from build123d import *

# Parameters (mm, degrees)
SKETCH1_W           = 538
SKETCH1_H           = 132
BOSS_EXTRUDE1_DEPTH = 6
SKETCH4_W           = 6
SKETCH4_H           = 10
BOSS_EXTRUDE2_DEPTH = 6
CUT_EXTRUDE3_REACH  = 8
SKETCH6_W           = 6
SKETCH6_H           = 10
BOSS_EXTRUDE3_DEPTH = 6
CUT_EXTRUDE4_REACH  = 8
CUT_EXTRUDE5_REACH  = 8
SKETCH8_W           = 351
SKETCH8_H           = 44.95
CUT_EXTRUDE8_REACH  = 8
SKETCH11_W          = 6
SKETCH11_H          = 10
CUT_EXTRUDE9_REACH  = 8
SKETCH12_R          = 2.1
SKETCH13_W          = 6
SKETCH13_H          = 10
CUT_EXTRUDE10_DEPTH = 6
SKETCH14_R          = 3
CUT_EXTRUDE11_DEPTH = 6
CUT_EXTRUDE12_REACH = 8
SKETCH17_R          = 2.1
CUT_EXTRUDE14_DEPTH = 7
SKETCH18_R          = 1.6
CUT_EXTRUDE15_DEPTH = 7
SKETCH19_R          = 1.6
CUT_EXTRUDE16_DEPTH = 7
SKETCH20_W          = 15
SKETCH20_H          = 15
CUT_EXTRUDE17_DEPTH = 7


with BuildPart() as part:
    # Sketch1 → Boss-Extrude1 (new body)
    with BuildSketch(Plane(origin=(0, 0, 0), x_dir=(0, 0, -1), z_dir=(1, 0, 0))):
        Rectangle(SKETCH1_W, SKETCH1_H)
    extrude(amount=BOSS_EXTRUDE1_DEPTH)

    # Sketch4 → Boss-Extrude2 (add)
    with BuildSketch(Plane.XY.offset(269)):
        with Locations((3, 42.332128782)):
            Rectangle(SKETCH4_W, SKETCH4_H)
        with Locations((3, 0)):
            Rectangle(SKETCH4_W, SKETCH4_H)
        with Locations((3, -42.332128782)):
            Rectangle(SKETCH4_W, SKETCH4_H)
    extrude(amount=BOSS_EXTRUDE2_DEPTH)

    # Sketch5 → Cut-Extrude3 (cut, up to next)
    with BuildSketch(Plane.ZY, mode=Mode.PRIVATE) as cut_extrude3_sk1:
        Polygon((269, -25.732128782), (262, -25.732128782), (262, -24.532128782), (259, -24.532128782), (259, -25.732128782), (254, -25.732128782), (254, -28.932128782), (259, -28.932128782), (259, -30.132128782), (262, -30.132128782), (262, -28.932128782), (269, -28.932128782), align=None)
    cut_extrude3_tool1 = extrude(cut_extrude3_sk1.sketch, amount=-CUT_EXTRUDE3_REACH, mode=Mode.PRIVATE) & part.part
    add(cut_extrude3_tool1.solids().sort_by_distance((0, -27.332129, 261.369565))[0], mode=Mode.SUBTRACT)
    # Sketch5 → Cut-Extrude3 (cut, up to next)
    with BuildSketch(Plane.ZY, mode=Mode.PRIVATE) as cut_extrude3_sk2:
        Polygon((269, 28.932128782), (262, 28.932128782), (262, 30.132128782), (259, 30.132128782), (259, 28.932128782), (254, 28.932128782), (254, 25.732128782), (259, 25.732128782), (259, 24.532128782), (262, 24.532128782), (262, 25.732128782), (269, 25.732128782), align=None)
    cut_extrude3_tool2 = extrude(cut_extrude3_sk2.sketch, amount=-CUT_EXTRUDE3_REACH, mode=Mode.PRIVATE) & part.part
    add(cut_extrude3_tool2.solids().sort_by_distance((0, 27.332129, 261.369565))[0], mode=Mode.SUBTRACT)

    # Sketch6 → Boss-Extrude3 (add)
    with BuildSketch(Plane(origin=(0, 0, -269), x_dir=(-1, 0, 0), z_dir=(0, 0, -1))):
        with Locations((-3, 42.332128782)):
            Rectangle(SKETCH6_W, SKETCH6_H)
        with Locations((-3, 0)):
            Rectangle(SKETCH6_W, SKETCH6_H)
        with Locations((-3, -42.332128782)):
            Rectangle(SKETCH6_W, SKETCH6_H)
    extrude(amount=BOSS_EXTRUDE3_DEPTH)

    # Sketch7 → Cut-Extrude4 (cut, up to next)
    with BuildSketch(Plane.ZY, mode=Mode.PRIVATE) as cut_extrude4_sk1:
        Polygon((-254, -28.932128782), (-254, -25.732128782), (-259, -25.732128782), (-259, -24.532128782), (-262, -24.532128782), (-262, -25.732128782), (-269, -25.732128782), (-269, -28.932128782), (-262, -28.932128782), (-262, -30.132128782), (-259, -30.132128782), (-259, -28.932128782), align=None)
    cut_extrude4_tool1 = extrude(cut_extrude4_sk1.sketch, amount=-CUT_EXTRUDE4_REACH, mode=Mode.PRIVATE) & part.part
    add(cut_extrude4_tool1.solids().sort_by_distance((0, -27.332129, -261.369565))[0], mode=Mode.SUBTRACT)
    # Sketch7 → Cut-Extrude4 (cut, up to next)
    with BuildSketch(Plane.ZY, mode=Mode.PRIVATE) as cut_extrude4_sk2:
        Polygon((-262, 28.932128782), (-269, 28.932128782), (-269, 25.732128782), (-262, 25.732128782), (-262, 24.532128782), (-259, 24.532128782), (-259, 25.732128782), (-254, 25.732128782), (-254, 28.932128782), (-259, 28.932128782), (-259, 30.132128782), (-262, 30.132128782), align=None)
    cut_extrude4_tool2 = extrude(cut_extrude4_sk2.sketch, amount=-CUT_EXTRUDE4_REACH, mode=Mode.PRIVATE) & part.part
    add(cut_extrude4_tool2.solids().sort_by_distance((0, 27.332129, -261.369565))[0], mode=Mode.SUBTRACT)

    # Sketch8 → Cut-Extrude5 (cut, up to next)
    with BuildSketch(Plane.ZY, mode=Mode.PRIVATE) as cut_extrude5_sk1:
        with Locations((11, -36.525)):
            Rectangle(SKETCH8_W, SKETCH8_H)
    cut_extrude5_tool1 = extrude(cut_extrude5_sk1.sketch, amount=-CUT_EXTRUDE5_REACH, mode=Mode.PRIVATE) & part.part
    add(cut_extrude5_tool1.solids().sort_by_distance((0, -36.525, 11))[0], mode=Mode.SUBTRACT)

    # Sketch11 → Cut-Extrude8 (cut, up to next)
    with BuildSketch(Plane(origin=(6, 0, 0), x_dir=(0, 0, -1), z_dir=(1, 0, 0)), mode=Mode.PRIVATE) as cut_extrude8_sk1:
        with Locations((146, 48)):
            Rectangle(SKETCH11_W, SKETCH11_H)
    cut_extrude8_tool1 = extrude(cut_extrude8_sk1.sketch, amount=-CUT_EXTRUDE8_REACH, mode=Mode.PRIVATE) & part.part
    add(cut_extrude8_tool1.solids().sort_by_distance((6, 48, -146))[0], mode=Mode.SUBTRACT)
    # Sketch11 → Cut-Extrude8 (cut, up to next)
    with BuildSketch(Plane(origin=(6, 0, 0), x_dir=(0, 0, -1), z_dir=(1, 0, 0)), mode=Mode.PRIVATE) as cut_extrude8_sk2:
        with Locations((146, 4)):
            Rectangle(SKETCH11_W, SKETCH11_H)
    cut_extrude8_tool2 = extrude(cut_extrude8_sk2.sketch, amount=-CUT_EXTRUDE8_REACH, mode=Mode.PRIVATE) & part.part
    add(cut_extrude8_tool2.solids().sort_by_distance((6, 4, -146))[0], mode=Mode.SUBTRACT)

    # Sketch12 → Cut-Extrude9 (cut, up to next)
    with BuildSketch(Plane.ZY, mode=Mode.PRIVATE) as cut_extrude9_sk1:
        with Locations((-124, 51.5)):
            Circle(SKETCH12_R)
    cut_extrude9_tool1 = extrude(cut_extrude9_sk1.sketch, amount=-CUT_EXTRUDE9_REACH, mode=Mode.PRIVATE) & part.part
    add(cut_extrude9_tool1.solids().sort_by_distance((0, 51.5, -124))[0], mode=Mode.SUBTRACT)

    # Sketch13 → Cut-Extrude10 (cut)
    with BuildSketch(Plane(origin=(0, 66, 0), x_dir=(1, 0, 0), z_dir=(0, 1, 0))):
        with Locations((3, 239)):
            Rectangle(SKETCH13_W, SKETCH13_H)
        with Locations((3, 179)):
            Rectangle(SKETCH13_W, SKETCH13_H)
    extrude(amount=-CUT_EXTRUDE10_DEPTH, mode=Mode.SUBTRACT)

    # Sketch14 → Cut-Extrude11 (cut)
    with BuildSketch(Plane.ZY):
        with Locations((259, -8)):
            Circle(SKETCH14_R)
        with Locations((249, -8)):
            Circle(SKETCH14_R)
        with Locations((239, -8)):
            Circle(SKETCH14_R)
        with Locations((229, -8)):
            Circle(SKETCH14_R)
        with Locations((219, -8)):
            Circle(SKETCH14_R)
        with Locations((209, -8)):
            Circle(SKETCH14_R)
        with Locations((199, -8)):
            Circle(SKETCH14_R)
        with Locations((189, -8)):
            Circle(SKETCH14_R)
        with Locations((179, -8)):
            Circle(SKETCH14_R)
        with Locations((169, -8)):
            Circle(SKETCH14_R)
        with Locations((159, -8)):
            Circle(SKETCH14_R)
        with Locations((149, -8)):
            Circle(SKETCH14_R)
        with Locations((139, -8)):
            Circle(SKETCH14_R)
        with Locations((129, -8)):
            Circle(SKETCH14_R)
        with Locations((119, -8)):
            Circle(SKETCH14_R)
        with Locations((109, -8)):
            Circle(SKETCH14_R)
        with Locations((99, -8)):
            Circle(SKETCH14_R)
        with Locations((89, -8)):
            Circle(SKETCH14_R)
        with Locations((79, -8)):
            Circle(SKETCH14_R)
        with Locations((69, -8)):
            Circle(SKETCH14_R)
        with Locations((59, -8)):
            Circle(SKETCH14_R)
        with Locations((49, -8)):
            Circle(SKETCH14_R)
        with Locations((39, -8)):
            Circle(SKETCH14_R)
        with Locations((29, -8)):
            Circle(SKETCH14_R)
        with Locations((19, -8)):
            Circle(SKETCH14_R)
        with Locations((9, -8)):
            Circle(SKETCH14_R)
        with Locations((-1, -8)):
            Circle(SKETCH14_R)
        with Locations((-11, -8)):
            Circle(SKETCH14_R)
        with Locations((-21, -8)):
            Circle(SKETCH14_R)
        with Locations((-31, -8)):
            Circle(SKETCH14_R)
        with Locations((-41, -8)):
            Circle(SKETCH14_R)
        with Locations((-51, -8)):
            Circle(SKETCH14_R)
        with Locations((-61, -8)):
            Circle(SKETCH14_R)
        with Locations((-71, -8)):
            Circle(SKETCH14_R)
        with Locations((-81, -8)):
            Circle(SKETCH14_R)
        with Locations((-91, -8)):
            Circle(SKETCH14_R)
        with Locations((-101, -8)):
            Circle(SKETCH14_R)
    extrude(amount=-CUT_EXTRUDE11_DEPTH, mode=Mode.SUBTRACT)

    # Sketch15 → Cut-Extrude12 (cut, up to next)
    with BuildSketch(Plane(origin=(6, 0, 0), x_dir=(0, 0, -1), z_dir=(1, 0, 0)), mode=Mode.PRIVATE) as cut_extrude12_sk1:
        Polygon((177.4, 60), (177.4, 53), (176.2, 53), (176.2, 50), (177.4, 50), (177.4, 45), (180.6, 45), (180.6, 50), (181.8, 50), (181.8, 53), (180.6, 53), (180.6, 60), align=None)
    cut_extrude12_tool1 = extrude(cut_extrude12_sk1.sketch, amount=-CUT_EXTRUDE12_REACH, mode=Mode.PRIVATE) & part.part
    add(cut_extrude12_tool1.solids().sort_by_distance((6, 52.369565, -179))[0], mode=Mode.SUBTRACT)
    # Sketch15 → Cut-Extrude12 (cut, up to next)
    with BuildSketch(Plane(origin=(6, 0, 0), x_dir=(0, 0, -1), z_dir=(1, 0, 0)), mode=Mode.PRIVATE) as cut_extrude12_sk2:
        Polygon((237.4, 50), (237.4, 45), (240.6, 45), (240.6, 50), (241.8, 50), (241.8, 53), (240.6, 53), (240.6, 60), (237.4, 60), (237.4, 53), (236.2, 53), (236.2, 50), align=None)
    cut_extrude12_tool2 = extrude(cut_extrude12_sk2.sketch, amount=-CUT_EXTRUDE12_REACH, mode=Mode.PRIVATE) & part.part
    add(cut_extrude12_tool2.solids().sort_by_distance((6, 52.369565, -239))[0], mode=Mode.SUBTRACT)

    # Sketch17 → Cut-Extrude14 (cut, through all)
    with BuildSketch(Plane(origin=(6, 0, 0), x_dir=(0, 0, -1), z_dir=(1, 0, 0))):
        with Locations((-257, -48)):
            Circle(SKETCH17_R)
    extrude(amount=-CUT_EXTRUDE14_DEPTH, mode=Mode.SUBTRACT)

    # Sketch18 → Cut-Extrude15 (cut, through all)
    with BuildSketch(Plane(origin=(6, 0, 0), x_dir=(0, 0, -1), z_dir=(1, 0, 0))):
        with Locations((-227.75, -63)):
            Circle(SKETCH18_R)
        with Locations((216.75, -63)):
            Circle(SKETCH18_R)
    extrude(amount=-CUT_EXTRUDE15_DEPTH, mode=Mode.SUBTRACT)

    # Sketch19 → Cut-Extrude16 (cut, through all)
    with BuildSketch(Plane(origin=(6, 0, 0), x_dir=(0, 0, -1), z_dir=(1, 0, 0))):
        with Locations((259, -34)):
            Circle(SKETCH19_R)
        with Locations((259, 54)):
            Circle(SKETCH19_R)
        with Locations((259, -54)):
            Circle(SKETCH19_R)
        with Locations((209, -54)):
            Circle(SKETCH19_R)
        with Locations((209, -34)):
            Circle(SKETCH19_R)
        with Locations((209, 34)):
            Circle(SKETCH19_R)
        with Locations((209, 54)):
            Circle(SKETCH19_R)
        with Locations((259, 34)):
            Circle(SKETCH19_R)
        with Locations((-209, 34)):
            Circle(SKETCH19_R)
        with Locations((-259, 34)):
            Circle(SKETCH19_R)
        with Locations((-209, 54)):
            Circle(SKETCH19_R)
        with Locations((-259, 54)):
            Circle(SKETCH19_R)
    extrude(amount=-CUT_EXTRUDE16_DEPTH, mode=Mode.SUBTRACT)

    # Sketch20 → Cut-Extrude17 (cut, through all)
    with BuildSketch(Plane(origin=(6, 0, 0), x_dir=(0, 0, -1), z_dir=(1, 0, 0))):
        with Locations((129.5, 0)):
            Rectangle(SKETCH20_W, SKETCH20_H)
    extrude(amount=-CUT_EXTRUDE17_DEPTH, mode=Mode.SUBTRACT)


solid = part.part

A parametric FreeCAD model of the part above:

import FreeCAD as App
import Part
import Sketcher
from FreeCAD import Vector
Q = App.Units.Quantity


def add_polygon(sketch, points):
    """Adds a closed chain of lines whose ends are joined by coincident constraints."""
    first, n = sketch.GeometryCount, len(points)
    for a, b in zip(points, points[1:] + points[:1]):
        sketch.addGeometry(Part.LineSegment(App.Vector(*a, 0), App.Vector(*b, 0)), False)
    for i in range(n):
        sketch.addConstraint(Sketcher.Constraint("Coincident", first + i, 2, first + (i + 1) % n, 1))

doc = App.newDocument("Part")
body = doc.addObject("PartDesign::Body", "Body")

# Sketch on YZ plane
sketch1 = doc.addObject("Sketcher::SketchObject", "Sketch")
body.addObject(sketch1)
sketch1.AttachmentSupport = (doc.YZ_Plane, [""])
sketch1.MapMode = "FlatFace"
add_polygon(sketch1, [(66, 269), (-66, 269), (-66, -269), (66, -269)])  # lines 0-3
sketch1.addConstraint(Sketcher.Constraint("Horizontal", 0))
sketch1.addConstraint(Sketcher.Constraint("Vertical", 1))
sketch1.addConstraint(Sketcher.Constraint("Horizontal", 2))
sketch1.addConstraint(Sketcher.Constraint("Vertical", 3))
sketch1.addConstraint(Sketcher.Constraint("Symmetric", 0, 2, 2, 2, -1, 1))
sketch1.addConstraint(Sketcher.Constraint("DistanceX", 0, 2, 0, 1, Q("132 mm")))
sketch1.addConstraint(Sketcher.Constraint("DistanceY", 1, 2, 1, 1, Q("538 mm")))
pad1 = doc.addObject("PartDesign::Pad", "Pad")
body.addObject(pad1)
pad1.Profile = sketch1
pad1.Length = 6

# Sketch on XY plane
sketch2 = doc.addObject("Sketcher::SketchObject", "Sketch001")
body.addObject(sketch2)
sketch2.AttachmentSupport = (doc.XY_Plane, [""])
sketch2.MapMode = "FlatFace"
sketch2.AttachmentOffset = App.Placement(Vector(0, 0, 269), App.Rotation())
add_polygon(sketch2, [(0, 47.332129), (0, 37.332129), (6, 37.332129), (6, 47.332129)])  # lines 0-3
add_polygon(sketch2, [(0, 5), (0, -5), (6, -5), (6, 5)])  # lines 4-7
add_polygon(sketch2, [(0, -37.332129), (0, -47.332129), (6, -47.332129), (6, -37.332129)])  # lines 8-11
sketch2.addConstraint(Sketcher.Constraint("Vertical", 0))
sketch2.addConstraint(Sketcher.Constraint("Horizontal", 1))
sketch2.addConstraint(Sketcher.Constraint("Vertical", 2))
sketch2.addConstraint(Sketcher.Constraint("Horizontal", 3))
sketch2.addConstraint(Sketcher.Constraint("Vertical", 4))
sketch2.addConstraint(Sketcher.Constraint("Horizontal", 5))
sketch2.addConstraint(Sketcher.Constraint("Vertical", 6))
sketch2.addConstraint(Sketcher.Constraint("Horizontal", 7))
sketch2.addConstraint(Sketcher.Constraint("Vertical", 8))
sketch2.addConstraint(Sketcher.Constraint("Horizontal", 9))
sketch2.addConstraint(Sketcher.Constraint("Vertical", 10))
sketch2.addConstraint(Sketcher.Constraint("Horizontal", 11))
sketch2.addConstraint(Sketcher.Constraint("Symmetric", 4, 2, 7, 2, -1, 1))
sketch2.addConstraint(Sketcher.Constraint("Symmetric", 3, 2, 8, 2, -1, 1))
sketch2.addConstraint(Sketcher.Constraint("Symmetric", 1, 2, 10, 2, -1))
sketch2.addConstraint(Sketcher.Constraint("PointOnObject", 0, 2, -2))
sketch2.addConstraint(Sketcher.Constraint("Vertical", 2, 2, 5, 2))
sketch2.addConstraint(Sketcher.Constraint("Equal", 2, 4))
sketch2.addConstraint(Sketcher.Constraint("DistanceX", 1, 1, 1, 2, Q("6 mm")))
sketch2.addConstraint(Sketcher.Constraint("DistanceY", 0, 2, 0, 1, Q("10 mm")))
sketch2.addConstraint(Sketcher.Constraint("DistanceY", -1, 1, 0, 2, Q("37.332129 mm")))
pad2 = doc.addObject("PartDesign::Pad", "Pad001")
body.addObject(pad2)
pad2.Profile = sketch2
pad2.Length = 6

# Sketch on YZ plane
sketch3 = doc.addObject("Sketcher::SketchObject", "Sketch002")
body.addObject(sketch3)
sketch3.AttachmentSupport = (doc.YZ_Plane, [""])
sketch3.MapMode = "FlatFace"
add_polygon(sketch3, [(-25.732129, 269), (-25.732129, 262), (-24.532129, 262), (-24.532129, 259), (-25.732129, 259), (-25.732129, 254), (-28.932129, 254), (-28.932129, 259), (-30.132129, 259), (-30.132129, 262), (-28.932129, 262), (-28.932129, 269)])  # lines 0-11
sketch3.addConstraint(Sketcher.Constraint("Vertical", 0))
sketch3.addConstraint(Sketcher.Constraint("Horizontal", 1))
sketch3.addConstraint(Sketcher.Constraint("Vertical", 2))
sketch3.addConstraint(Sketcher.Constraint("Horizontal", 3))
sketch3.addConstraint(Sketcher.Constraint("Vertical", 4))
sketch3.addConstraint(Sketcher.Constraint("Horizontal", 5))
sketch3.addConstraint(Sketcher.Constraint("Vertical", 6))
sketch3.addConstraint(Sketcher.Constraint("Horizontal", 7))
sketch3.addConstraint(Sketcher.Constraint("Vertical", 8))
sketch3.addConstraint(Sketcher.Constraint("Horizontal", 9))
sketch3.addConstraint(Sketcher.Constraint("Vertical", 10))
sketch3.addConstraint(Sketcher.Constraint("Horizontal", 11))
sketch3.addConstraint(Sketcher.Constraint("Horizontal", 3, 2, 6, 2))
sketch3.addConstraint(Sketcher.Constraint("Horizontal", 1, 2, 8, 2))
sketch3.addConstraint(Sketcher.Constraint("Vertical", 0, 2, 3, 2))
sketch3.addConstraint(Sketcher.Constraint("Vertical", 6, 2, 9, 2))
sketch3.addConstraint(Sketcher.Constraint("Equal", 3, 7))
sketch3.addConstraint(Sketcher.Constraint("DistanceY", 0, 2, 0, 1, Q("7 mm")))
sketch3.addConstraint(Sketcher.Constraint("DistanceY", 2, 2, 2, 1, Q("3 mm")))
sketch3.addConstraint(Sketcher.Constraint("DistanceY", 4, 2, 4, 1, Q("5 mm")))
sketch3.addConstraint(Sketcher.Constraint("DistanceX", 1, 1, 1, 2, Q("1.2 mm")))
sketch3.addConstraint(Sketcher.Constraint("DistanceX", 5, 2, 5, 1, Q("3.2 mm")))
sketch3.addConstraint(Sketcher.Constraint("DistanceY", -1, 1, 0, 2, Q("262 mm")))
sketch3.addConstraint(Sketcher.Constraint("DistanceX", 0, 2, -1, 1, Q("25.732129 mm")))
pocket1 = doc.addObject("PartDesign::Pocket", "Pocket")
body.addObject(pocket1)
pocket1.Profile = sketch3
pocket1.Type = "UpToFirst"
pocket1.Reversed = True

# Sketch on YZ plane
sketch4 = doc.addObject("Sketcher::SketchObject", "Sketch003")
body.addObject(sketch4)
sketch4.AttachmentSupport = (doc.YZ_Plane, [""])
sketch4.MapMode = "FlatFace"
add_polygon(sketch4, [(28.932129, 269), (28.932129, 262), (30.132129, 262), (30.132129, 259), (28.932129, 259), (28.932129, 254), (25.732129, 254), (25.732129, 259), (24.532129, 259), (24.532129, 262), (25.732129, 262), (25.732129, 269)])  # lines 0-11
sketch4.addConstraint(Sketcher.Constraint("Vertical", 0))
sketch4.addConstraint(Sketcher.Constraint("Horizontal", 1))
sketch4.addConstraint(Sketcher.Constraint("Vertical", 2))
sketch4.addConstraint(Sketcher.Constraint("Horizontal", 3))
sketch4.addConstraint(Sketcher.Constraint("Vertical", 4))
sketch4.addConstraint(Sketcher.Constraint("Horizontal", 5))
sketch4.addConstraint(Sketcher.Constraint("Vertical", 6))
sketch4.addConstraint(Sketcher.Constraint("Horizontal", 7))
sketch4.addConstraint(Sketcher.Constraint("Vertical", 8))
sketch4.addConstraint(Sketcher.Constraint("Horizontal", 9))
sketch4.addConstraint(Sketcher.Constraint("Vertical", 10))
sketch4.addConstraint(Sketcher.Constraint("Horizontal", 11))
sketch4.addConstraint(Sketcher.Constraint("Horizontal", 3, 2, 6, 2))
sketch4.addConstraint(Sketcher.Constraint("Horizontal", 1, 2, 8, 2))
sketch4.addConstraint(Sketcher.Constraint("Vertical", 0, 2, 3, 2))
sketch4.addConstraint(Sketcher.Constraint("Vertical", 6, 2, 9, 2))
sketch4.addConstraint(Sketcher.Constraint("Equal", 3, 7))
sketch4.addConstraint(Sketcher.Constraint("DistanceY", 0, 2, 0, 1, Q("7 mm")))
sketch4.addConstraint(Sketcher.Constraint("DistanceY", 2, 2, 2, 1, Q("3 mm")))
sketch4.addConstraint(Sketcher.Constraint("DistanceY", 4, 2, 4, 1, Q("5 mm")))
sketch4.addConstraint(Sketcher.Constraint("DistanceX", 1, 1, 1, 2, Q("1.2 mm")))
sketch4.addConstraint(Sketcher.Constraint("DistanceX", 5, 2, 5, 1, Q("3.2 mm")))
sketch4.addConstraint(Sketcher.Constraint("DistanceY", -1, 1, 0, 2, Q("262 mm")))
sketch4.addConstraint(Sketcher.Constraint("DistanceX", -1, 1, 0, 2, Q("28.932129 mm")))
pocket2 = doc.addObject("PartDesign::Pocket", "Pocket001")
body.addObject(pocket2)
pocket2.Profile = sketch4
pocket2.Type = "UpToFirst"
pocket2.Reversed = True

# Sketch on XY plane
sketch5 = doc.addObject("Sketcher::SketchObject", "Sketch004")
body.addObject(sketch5)
sketch5.AttachmentSupport = (doc.XY_Plane, [""])
sketch5.MapMode = "FlatFace"
sketch5.AttachmentOffset = App.Placement(Vector(0, 0, -269), App.Rotation())
add_polygon(sketch5, [(6, 47.332129), (6, 37.332129), (0, 37.332129), (0, 47.332129)])  # lines 0-3
add_polygon(sketch5, [(6, 5), (6, -5), (0, -5), (0, 5)])  # lines 4-7
add_polygon(sketch5, [(6, -37.332129), (6, -47.332129), (0, -47.332129), (0, -37.332129)])  # lines 8-11
sketch5.addConstraint(Sketcher.Constraint("Vertical", 0))
sketch5.addConstraint(Sketcher.Constraint("Horizontal", 1))
sketch5.addConstraint(Sketcher.Constraint("Vertical", 2))
sketch5.addConstraint(Sketcher.Constraint("Horizontal", 3))
sketch5.addConstraint(Sketcher.Constraint("Vertical", 4))
sketch5.addConstraint(Sketcher.Constraint("Horizontal", 5))
sketch5.addConstraint(Sketcher.Constraint("Vertical", 6))
sketch5.addConstraint(Sketcher.Constraint("Horizontal", 7))
sketch5.addConstraint(Sketcher.Constraint("Vertical", 8))
sketch5.addConstraint(Sketcher.Constraint("Horizontal", 9))
sketch5.addConstraint(Sketcher.Constraint("Vertical", 10))
sketch5.addConstraint(Sketcher.Constraint("Horizontal", 11))
sketch5.addConstraint(Sketcher.Constraint("Symmetric", 5, 2, 6, 2, -1, 1))
sketch5.addConstraint(Sketcher.Constraint("Symmetric", 2, 2, 9, 2, -1, 1))
sketch5.addConstraint(Sketcher.Constraint("Symmetric", 1, 2, 10, 2, -1))
sketch5.addConstraint(Sketcher.Constraint("Vertical", 3, 2, 4, 2))
sketch5.addConstraint(Sketcher.Constraint("Vertical", 7, 2, 8, 2))
sketch5.addConstraint(Sketcher.Constraint("Equal", 2, 4))
sketch5.addConstraint(Sketcher.Constraint("DistanceX", 1, 2, 1, 1, Q("6 mm")))
sketch5.addConstraint(Sketcher.Constraint("DistanceY", 0, 2, 0, 1, Q("10 mm")))
sketch5.addConstraint(Sketcher.Constraint("DistanceY", -1, 1, 0, 2, Q("37.332129 mm")))
pad3 = doc.addObject("PartDesign::Pad", "Pad002")
body.addObject(pad3)
pad3.Profile = sketch5
pad3.Length = 6
pad3.Reversed = True

# Sketch on YZ plane
sketch6 = doc.addObject("Sketcher::SketchObject", "Sketch005")
body.addObject(sketch6)
sketch6.AttachmentSupport = (doc.YZ_Plane, [""])
sketch6.MapMode = "FlatFace"
add_polygon(sketch6, [(-28.932129, -254), (-25.732129, -254), (-25.732129, -259), (-24.532129, -259), (-24.532129, -262), (-25.732129, -262), (-25.732129, -269), (-28.932129, -269), (-28.932129, -262), (-30.132129, -262), (-30.132129, -259), (-28.932129, -259)])  # lines 0-11
sketch6.addConstraint(Sketcher.Constraint("Horizontal", 0))
sketch6.addConstraint(Sketcher.Constraint("Vertical", 1))
sketch6.addConstraint(Sketcher.Constraint("Horizontal", 2))
sketch6.addConstraint(Sketcher.Constraint("Vertical", 3))
sketch6.addConstraint(Sketcher.Constraint("Horizontal", 4))
sketch6.addConstraint(Sketcher.Constraint("Vertical", 5))
sketch6.addConstraint(Sketcher.Constraint("Horizontal", 6))
sketch6.addConstraint(Sketcher.Constraint("Vertical", 7))
sketch6.addConstraint(Sketcher.Constraint("Horizontal", 8))
sketch6.addConstraint(Sketcher.Constraint("Vertical", 9))
sketch6.addConstraint(Sketcher.Constraint("Horizontal", 10))
sketch6.addConstraint(Sketcher.Constraint("Vertical", 11))
sketch6.addConstraint(Sketcher.Constraint("Horizontal", 4, 2, 7, 2))
sketch6.addConstraint(Sketcher.Constraint("Horizontal", 2, 2, 9, 2))
sketch6.addConstraint(Sketcher.Constraint("Vertical", 1, 2, 4, 2))
sketch6.addConstraint(Sketcher.Constraint("Vertical", 7, 2, 10, 2))
sketch6.addConstraint(Sketcher.Constraint("Equal", 4, 8))
sketch6.addConstraint(Sketcher.Constraint("DistanceY", 1, 2, 1, 1, Q("5 mm")))
sketch6.addConstraint(Sketcher.Constraint("DistanceY", 3, 2, 3, 1, Q("3 mm")))
sketch6.addConstraint(Sketcher.Constraint("DistanceY", 5, 2, 5, 1, Q("7 mm")))
sketch6.addConstraint(Sketcher.Constraint("DistanceX", 0, 1, 0, 2, Q("3.2 mm")))
sketch6.addConstraint(Sketcher.Constraint("DistanceX", 2, 1, 2, 2, Q("1.2 mm")))
sketch6.addConstraint(Sketcher.Constraint("DistanceY", 0, 2, -1, 1, Q("254 mm")))
sketch6.addConstraint(Sketcher.Constraint("DistanceX", 0, 2, -1, 1, Q("25.732129 mm")))
pocket3 = doc.addObject("PartDesign::Pocket", "Pocket002")
body.addObject(pocket3)
pocket3.Profile = sketch6
pocket3.Type = "UpToFirst"
pocket3.Reversed = True

# Sketch on YZ plane
sketch7 = doc.addObject("Sketcher::SketchObject", "Sketch006")
body.addObject(sketch7)
sketch7.AttachmentSupport = (doc.YZ_Plane, [""])
sketch7.MapMode = "FlatFace"
add_polygon(sketch7, [(28.932129, -262), (28.932129, -269), (25.732129, -269), (25.732129, -262), (24.532129, -262), (24.532129, -259), (25.732129, -259), (25.732129, -254), (28.932129, -254), (28.932129, -259), (30.132129, -259), (30.132129, -262)])  # lines 0-11
sketch7.addConstraint(Sketcher.Constraint("Vertical", 0))
sketch7.addConstraint(Sketcher.Constraint("Horizontal", 1))
sketch7.addConstraint(Sketcher.Constraint("Vertical", 2))
sketch7.addConstraint(Sketcher.Constraint("Horizontal", 3))
sketch7.addConstraint(Sketcher.Constraint("Vertical", 4))
sketch7.addConstraint(Sketcher.Constraint("Horizontal", 5))
sketch7.addConstraint(Sketcher.Constraint("Vertical", 6))
sketch7.addConstraint(Sketcher.Constraint("Horizontal", 7))
sketch7.addConstraint(Sketcher.Constraint("Vertical", 8))
sketch7.addConstraint(Sketcher.Constraint("Horizontal", 9))
sketch7.addConstraint(Sketcher.Constraint("Vertical", 10))
sketch7.addConstraint(Sketcher.Constraint("Horizontal", 11))
sketch7.addConstraint(Sketcher.Constraint("Horizontal", 5, 2, 8, 2))
sketch7.addConstraint(Sketcher.Constraint("Horizontal", 3, 2, 10, 2))
sketch7.addConstraint(Sketcher.Constraint("Vertical", 2, 2, 5, 2))
sketch7.addConstraint(Sketcher.Constraint("Vertical", 0, 2, 7, 2))
sketch7.addConstraint(Sketcher.Constraint("Equal", 5, 9))
sketch7.addConstraint(Sketcher.Constraint("DistanceY", 0, 2, 0, 1, Q("7 mm")))
sketch7.addConstraint(Sketcher.Constraint("DistanceY", 4, 1, 4, 2, Q("3 mm")))
sketch7.addConstraint(Sketcher.Constraint("DistanceY", 6, 1, 6, 2, Q("5 mm")))
sketch7.addConstraint(Sketcher.Constraint("DistanceX", 1, 2, 1, 1, Q("3.2 mm")))
sketch7.addConstraint(Sketcher.Constraint("DistanceX", 3, 2, 3, 1, Q("1.2 mm")))
sketch7.addConstraint(Sketcher.Constraint("DistanceY", 0, 2, -1, 1, Q("269 mm")))
sketch7.addConstraint(Sketcher.Constraint("DistanceX", -1, 1, 0, 2, Q("28.932129 mm")))
pocket4 = doc.addObject("PartDesign::Pocket", "Pocket003")
body.addObject(pocket4)
pocket4.Profile = sketch7
pocket4.Type = "UpToFirst"
pocket4.Reversed = True

# Sketch on YZ plane
sketch8 = doc.addObject("Sketcher::SketchObject", "Sketch007")
body.addObject(sketch8)
sketch8.AttachmentSupport = (doc.YZ_Plane, [""])
sketch8.MapMode = "FlatFace"
add_polygon(sketch8, [(-14.05, -164.5), (-59, -164.5), (-59, 186.5), (-14.05, 186.5)])  # lines 0-3
sketch8.addConstraint(Sketcher.Constraint("Horizontal", 0))
sketch8.addConstraint(Sketcher.Constraint("Vertical", 1))
sketch8.addConstraint(Sketcher.Constraint("Horizontal", 2))
sketch8.addConstraint(Sketcher.Constraint("Vertical", 3))
sketch8.addConstraint(Sketcher.Constraint("DistanceY", 1, 1, 1, 2, Q("351 mm")))
sketch8.addConstraint(Sketcher.Constraint("DistanceX", 0, 2, -1, 1, Q("59 mm")))
sketch8.addConstraint(Sketcher.Constraint("DistanceX", 0, 2, 0, 1, Q("44.95 mm")))
sketch8.addConstraint(Sketcher.Constraint("DistanceY", 0, 2, -1, 1, Q("164.5 mm")))
pocket5 = doc.addObject("PartDesign::Pocket", "Pocket004")
body.addObject(pocket5)
pocket5.Profile = sketch8
pocket5.Type = "UpToFirst"
pocket5.Reversed = True

# Sketch on YZ plane
sketch9 = doc.addObject("Sketcher::SketchObject", "Sketch008")
body.addObject(sketch9)
sketch9.AttachmentSupport = (doc.YZ_Plane, [""])
sketch9.MapMode = "FlatFace"
sketch9.AttachmentOffset = App.Placement(Vector(0, 0, 6), App.Rotation())
add_polygon(sketch9, [(53, -143), (43, -143), (43, -149), (53, -149)])  # lines 0-3
sketch9.addConstraint(Sketcher.Constraint("Horizontal", 0))
sketch9.addConstraint(Sketcher.Constraint("Vertical", 1))
sketch9.addConstraint(Sketcher.Constraint("Horizontal", 2))
sketch9.addConstraint(Sketcher.Constraint("Vertical", 3))
sketch9.addConstraint(Sketcher.Constraint("DistanceX", 0, 2, 0, 1, Q("10 mm")))
sketch9.addConstraint(Sketcher.Constraint("DistanceY", 1, 2, 1, 1, Q("6 mm")))
sketch9.addConstraint(Sketcher.Constraint("DistanceX", -1, 1, 0, 2, Q("43 mm")))
sketch9.addConstraint(Sketcher.Constraint("DistanceY", 0, 2, -1, 1, Q("143 mm")))
pocket6 = doc.addObject("PartDesign::Pocket", "Pocket005")
body.addObject(pocket6)
pocket6.Profile = sketch9
pocket6.Type = "UpToFirst"

# Sketch on YZ plane
sketch10 = doc.addObject("Sketcher::SketchObject", "Sketch009")
body.addObject(sketch10)
sketch10.AttachmentSupport = (doc.YZ_Plane, [""])
sketch10.MapMode = "FlatFace"
sketch10.AttachmentOffset = App.Placement(Vector(0, 0, 6), App.Rotation())
add_polygon(sketch10, [(9, -143), (-1, -143), (-1, -149), (9, -149)])  # lines 0-3
sketch10.addConstraint(Sketcher.Constraint("Horizontal", 0))
sketch10.addConstraint(Sketcher.Constraint("Vertical", 1))
sketch10.addConstraint(Sketcher.Constraint("Horizontal", 2))
sketch10.addConstraint(Sketcher.Constraint("Vertical", 3))
sketch10.addConstraint(Sketcher.Constraint("DistanceX", 0, 2, 0, 1, Q("10 mm")))
sketch10.addConstraint(Sketcher.Constraint("DistanceY", 1, 2, 1, 1, Q("6 mm")))
sketch10.addConstraint(Sketcher.Constraint("DistanceX", 0, 2, -1, 1, Q("1 mm")))
sketch10.addConstraint(Sketcher.Constraint("DistanceY", 0, 2, -1, 1, Q("143 mm")))
pocket7 = doc.addObject("PartDesign::Pocket", "Pocket006")
body.addObject(pocket7)
pocket7.Profile = sketch10
pocket7.Type = "UpToFirst"

# Sketch on YZ plane
sketch11 = doc.addObject("Sketcher::SketchObject", "Sketch010")
body.addObject(sketch11)
sketch11.AttachmentSupport = (doc.YZ_Plane, [""])
sketch11.MapMode = "FlatFace"
sketch11.addGeometry(Part.Circle(Vector(51.5, -124, 0), Vector(0, 0, 1), 2.1), False)
sketch11.addConstraint(Sketcher.Constraint("Diameter", 0, Q("4.2 mm")))
sketch11.addConstraint(Sketcher.Constraint("DistanceY", 0, 3, -1, 1, Q("124 mm")))
sketch11.addConstraint(Sketcher.Constraint("DistanceX", -1, 1, 0, 3, Q("51.5 mm")))
pocket8 = doc.addObject("PartDesign::Pocket", "Pocket007")
body.addObject(pocket8)
pocket8.Profile = sketch11
pocket8.Type = "UpToFirst"
pocket8.Reversed = True

# Sketch on XZ plane
sketch12 = doc.addObject("Sketcher::SketchObject", "Sketch011")
body.addObject(sketch12)
sketch12.AttachmentSupport = (doc.XZ_Plane, [""])
sketch12.MapMode = "FlatFace"
sketch12.AttachmentOffset = App.Placement(Vector(0, 0, -66), App.Rotation())
add_polygon(sketch12, [(0, -244), (0, -234), (6, -234), (6, -244)])  # lines 0-3
add_polygon(sketch12, [(0, -184), (0, -174), (6, -174), (6, -184)])  # lines 4-7
sketch12.addConstraint(Sketcher.Constraint("Vertical", 0))
sketch12.addConstraint(Sketcher.Constraint("Horizontal", 1))
sketch12.addConstraint(Sketcher.Constraint("Vertical", 2))
sketch12.addConstraint(Sketcher.Constraint("Horizontal", 3))
sketch12.addConstraint(Sketcher.Constraint("Vertical", 4))
sketch12.addConstraint(Sketcher.Constraint("Horizontal", 5))
sketch12.addConstraint(Sketcher.Constraint("Vertical", 6))
sketch12.addConstraint(Sketcher.Constraint("Horizontal", 7))
sketch12.addConstraint(Sketcher.Constraint("PointOnObject", 0, 2, -2))
sketch12.addConstraint(Sketcher.Constraint("PointOnObject", 4, 2, -2))
sketch12.addConstraint(Sketcher.Constraint("Vertical", 2, 2, 5, 2))
sketch12.addConstraint(Sketcher.Constraint("Equal", 2, 4))
sketch12.addConstraint(Sketcher.Constraint("DistanceX", 1, 1, 1, 2, Q("6 mm")))
sketch12.addConstraint(Sketcher.Constraint("DistanceY", 0, 1, 0, 2, Q("10 mm")))
sketch12.addConstraint(Sketcher.Constraint("DistanceY", 0, 2, -1, 1, Q("234 mm")))
sketch12.addConstraint(Sketcher.Constraint("DistanceY", 4, 2, -1, 1, Q("174 mm")))
pocket9 = doc.addObject("PartDesign::Pocket", "Pocket008")
body.addObject(pocket9)
pocket9.Profile = sketch12
pocket9.Length = 6
pocket9.Reversed = True

# Sketch on YZ plane
sketch13 = doc.addObject("Sketcher::SketchObject", "Sketch012")
body.addObject(sketch13)
sketch13.AttachmentSupport = (doc.YZ_Plane, [""])
sketch13.MapMode = "FlatFace"
sketch13.addGeometry(Part.Circle(Vector(-8, 259, 0), Vector(0, 0, 1), 3), False)
sketch13.addGeometry(Part.Circle(Vector(-8, 249, 0), Vector(0, 0, 1), 3), False)
sketch13.addGeometry(Part.Circle(Vector(-8, 239, 0), Vector(0, 0, 1), 3), False)
sketch13.addGeometry(Part.Circle(Vector(-8, 229, 0), Vector(0, 0, 1), 3), False)
sketch13.addGeometry(Part.Circle(Vector(-8, 219, 0), Vector(0, 0, 1), 3), False)
sketch13.addGeometry(Part.Circle(Vector(-8, 209, 0), Vector(0, 0, 1), 3), False)
sketch13.addGeometry(Part.Circle(Vector(-8, 199, 0), Vector(0, 0, 1), 3), False)
sketch13.addGeometry(Part.Circle(Vector(-8, 189, 0), Vector(0, 0, 1), 3), False)
sketch13.addGeometry(Part.Circle(Vector(-8, 179, 0), Vector(0, 0, 1), 3), False)
sketch13.addGeometry(Part.Circle(Vector(-8, 169, 0), Vector(0, 0, 1), 3), False)
sketch13.addGeometry(Part.Circle(Vector(-8, 159, 0), Vector(0, 0, 1), 3), False)
sketch13.addGeometry(Part.Circle(Vector(-8, 149, 0), Vector(0, 0, 1), 3), False)
sketch13.addGeometry(Part.Circle(Vector(-8, 139, 0), Vector(0, 0, 1), 3), False)
sketch13.addGeometry(Part.Circle(Vector(-8, 129, 0), Vector(0, 0, 1), 3), False)
sketch13.addGeometry(Part.Circle(Vector(-8, 119, 0), Vector(0, 0, 1), 3), False)
sketch13.addGeometry(Part.Circle(Vector(-8, 109, 0), Vector(0, 0, 1), 3), False)
sketch13.addGeometry(Part.Circle(Vector(-8, 99, 0), Vector(0, 0, 1), 3), False)
sketch13.addGeometry(Part.Circle(Vector(-8, 89, 0), Vector(0, 0, 1), 3), False)
sketch13.addGeometry(Part.Circle(Vector(-8, 79, 0), Vector(0, 0, 1), 3), False)
sketch13.addGeometry(Part.Circle(Vector(-8, 69, 0), Vector(0, 0, 1), 3), False)
sketch13.addGeometry(Part.Circle(Vector(-8, 59, 0), Vector(0, 0, 1), 3), False)
sketch13.addGeometry(Part.Circle(Vector(-8, 49, 0), Vector(0, 0, 1), 3), False)
sketch13.addGeometry(Part.Circle(Vector(-8, 39, 0), Vector(0, 0, 1), 3), False)
sketch13.addGeometry(Part.Circle(Vector(-8, 29, 0), Vector(0, 0, 1), 3), False)
sketch13.addGeometry(Part.Circle(Vector(-8, 19, 0), Vector(0, 0, 1), 3), False)
sketch13.addGeometry(Part.Circle(Vector(-8, 9, 0), Vector(0, 0, 1), 3), False)
sketch13.addGeometry(Part.Circle(Vector(-8, -1, 0), Vector(0, 0, 1), 3), False)
sketch13.addGeometry(Part.Circle(Vector(-8, -11, 0), Vector(0, 0, 1), 3), False)
sketch13.addGeometry(Part.Circle(Vector(-8, -21, 0), Vector(0, 0, 1), 3), False)
sketch13.addGeometry(Part.Circle(Vector(-8, -31, 0), Vector(0, 0, 1), 3), False)
sketch13.addGeometry(Part.Circle(Vector(-8, -41, 0), Vector(0, 0, 1), 3), False)
sketch13.addGeometry(Part.Circle(Vector(-8, -51, 0), Vector(0, 0, 1), 3), False)
sketch13.addGeometry(Part.Circle(Vector(-8, -61, 0), Vector(0, 0, 1), 3), False)
sketch13.addGeometry(Part.Circle(Vector(-8, -71, 0), Vector(0, 0, 1), 3), False)
sketch13.addGeometry(Part.Circle(Vector(-8, -81, 0), Vector(0, 0, 1), 3), False)
sketch13.addGeometry(Part.Circle(Vector(-8, -91, 0), Vector(0, 0, 1), 3), False)
sketch13.addGeometry(Part.Circle(Vector(-8, -101, 0), Vector(0, 0, 1), 3), False)
sketch13.addConstraint(Sketcher.Constraint("Equal", 0, 1))
sketch13.addConstraint(Sketcher.Constraint("Equal", 1, 2))
sketch13.addConstraint(Sketcher.Constraint("Equal", 2, 3))
sketch13.addConstraint(Sketcher.Constraint("Equal", 3, 4))
sketch13.addConstraint(Sketcher.Constraint("Equal", 4, 5))
sketch13.addConstraint(Sketcher.Constraint("Equal", 5, 6))
sketch13.addConstraint(Sketcher.Constraint("Equal", 6, 7))
sketch13.addConstraint(Sketcher.Constraint("Equal", 7, 8))
sketch13.addConstraint(Sketcher.Constraint("Equal", 8, 9))
sketch13.addConstraint(Sketcher.Constraint("Equal", 9, 10))
sketch13.addConstraint(Sketcher.Constraint("Equal", 10, 11))
sketch13.addConstraint(Sketcher.Constraint("Equal", 11, 12))
sketch13.addConstraint(Sketcher.Constraint("Equal", 12, 13))
sketch13.addConstraint(Sketcher.Constraint("Equal", 13, 14))
sketch13.addConstraint(Sketcher.Constraint("Equal", 14, 15))
sketch13.addConstraint(Sketcher.Constraint("Equal", 15, 16))
sketch13.addConstraint(Sketcher.Constraint("Equal", 16, 17))
sketch13.addConstraint(Sketcher.Constraint("Equal", 17, 18))
sketch13.addConstraint(Sketcher.Constraint("Equal", 18, 19))
sketch13.addConstraint(Sketcher.Constraint("Equal", 19, 20))
sketch13.addConstraint(Sketcher.Constraint("Equal", 20, 21))
sketch13.addConstraint(Sketcher.Constraint("Equal", 21, 22))
sketch13.addConstraint(Sketcher.Constraint("Equal", 22, 23))
sketch13.addConstraint(Sketcher.Constraint("Equal", 23, 24))
sketch13.addConstraint(Sketcher.Constraint("Equal", 24, 25))
sketch13.addConstraint(Sketcher.Constraint("Equal", 25, 26))
sketch13.addConstraint(Sketcher.Constraint("Equal", 26, 27))
sketch13.addConstraint(Sketcher.Constraint("Equal", 27, 28))
sketch13.addConstraint(Sketcher.Constraint("Equal", 28, 29))
sketch13.addConstraint(Sketcher.Constraint("Equal", 29, 30))
sketch13.addConstraint(Sketcher.Constraint("Equal", 30, 31))
sketch13.addConstraint(Sketcher.Constraint("Equal", 31, 32))
sketch13.addConstraint(Sketcher.Constraint("Equal", 32, 33))
sketch13.addConstraint(Sketcher.Constraint("Equal", 33, 34))
sketch13.addConstraint(Sketcher.Constraint("Equal", 34, 35))
sketch13.addConstraint(Sketcher.Constraint("Equal", 35, 36))
sketch13.addConstraint(Sketcher.Constraint("Vertical", 0, 3, 1, 3))
sketch13.addConstraint(Sketcher.Constraint("Vertical", 1, 3, 2, 3))
sketch13.addConstraint(Sketcher.Constraint("Vertical", 2, 3, 3, 3))
sketch13.addConstraint(Sketcher.Constraint("Vertical", 3, 3, 4, 3))
sketch13.addConstraint(Sketcher.Constraint("Vertical", 4, 3, 5, 3))
sketch13.addConstraint(Sketcher.Constraint("Vertical", 5, 3, 6, 3))
sketch13.addConstraint(Sketcher.Constraint("Vertical", 6, 3, 7, 3))
sketch13.addConstraint(Sketcher.Constraint("Vertical", 7, 3, 8, 3))
sketch13.addConstraint(Sketcher.Constraint("Vertical", 8, 3, 9, 3))
sketch13.addConstraint(Sketcher.Constraint("Vertical", 9, 3, 10, 3))
sketch13.addConstraint(Sketcher.Constraint("Vertical", 10, 3, 11, 3))
sketch13.addConstraint(Sketcher.Constraint("Vertical", 11, 3, 12, 3))
sketch13.addConstraint(Sketcher.Constraint("Vertical", 12, 3, 13, 3))
sketch13.addConstraint(Sketcher.Constraint("Vertical", 13, 3, 14, 3))
sketch13.addConstraint(Sketcher.Constraint("Vertical", 14, 3, 15, 3))
sketch13.addConstraint(Sketcher.Constraint("Vertical", 15, 3, 16, 3))
sketch13.addConstraint(Sketcher.Constraint("Vertical", 16, 3, 17, 3))
sketch13.addConstraint(Sketcher.Constraint("Vertical", 17, 3, 18, 3))
sketch13.addConstraint(Sketcher.Constraint("Vertical", 18, 3, 19, 3))
sketch13.addConstraint(Sketcher.Constraint("Vertical", 19, 3, 20, 3))
sketch13.addConstraint(Sketcher.Constraint("Vertical", 20, 3, 21, 3))
sketch13.addConstraint(Sketcher.Constraint("Vertical", 21, 3, 22, 3))
sketch13.addConstraint(Sketcher.Constraint("Vertical", 22, 3, 23, 3))
sketch13.addConstraint(Sketcher.Constraint("Vertical", 23, 3, 24, 3))
sketch13.addConstraint(Sketcher.Constraint("Vertical", 24, 3, 25, 3))
sketch13.addConstraint(Sketcher.Constraint("Vertical", 25, 3, 26, 3))
sketch13.addConstraint(Sketcher.Constraint("Vertical", 26, 3, 27, 3))
sketch13.addConstraint(Sketcher.Constraint("Vertical", 27, 3, 28, 3))
sketch13.addConstraint(Sketcher.Constraint("Vertical", 28, 3, 29, 3))
sketch13.addConstraint(Sketcher.Constraint("Vertical", 29, 3, 30, 3))
sketch13.addConstraint(Sketcher.Constraint("Vertical", 30, 3, 31, 3))
sketch13.addConstraint(Sketcher.Constraint("Vertical", 31, 3, 32, 3))
sketch13.addConstraint(Sketcher.Constraint("Vertical", 32, 3, 33, 3))
sketch13.addConstraint(Sketcher.Constraint("Vertical", 33, 3, 34, 3))
sketch13.addConstraint(Sketcher.Constraint("Vertical", 34, 3, 35, 3))
sketch13.addConstraint(Sketcher.Constraint("Vertical", 35, 3, 36, 3))
sketch13.addConstraint(Sketcher.Constraint("Diameter", 0, Q("6 mm")))
sketch13.addConstraint(Sketcher.Constraint("DistanceX", 0, 3, -1, 1, Q("8 mm")))
sketch13.addConstraint(Sketcher.Constraint("DistanceY", -1, 1, 0, 3, Q("259 mm")))
sketch13.addConstraint(Sketcher.Constraint("DistanceY", -1, 1, 1, 3, Q("249 mm")))
sketch13.addConstraint(Sketcher.Constraint("DistanceY", -1, 1, 2, 3, Q("239 mm")))
sketch13.addConstraint(Sketcher.Constraint("DistanceY", -1, 1, 3, 3, Q("229 mm")))
sketch13.addConstraint(Sketcher.Constraint("DistanceY", -1, 1, 4, 3, Q("219 mm")))
sketch13.addConstraint(Sketcher.Constraint("DistanceY", -1, 1, 5, 3, Q("209 mm")))
sketch13.addConstraint(Sketcher.Constraint("DistanceY", -1, 1, 6, 3, Q("199 mm")))
sketch13.addConstraint(Sketcher.Constraint("DistanceY", -1, 1, 7, 3, Q("189 mm")))
sketch13.addConstraint(Sketcher.Constraint("DistanceY", -1, 1, 8, 3, Q("179 mm")))
sketch13.addConstraint(Sketcher.Constraint("DistanceY", -1, 1, 9, 3, Q("169 mm")))
sketch13.addConstraint(Sketcher.Constraint("DistanceY", -1, 1, 10, 3, Q("159 mm")))
sketch13.addConstraint(Sketcher.Constraint("DistanceY", -1, 1, 11, 3, Q("149 mm")))
sketch13.addConstraint(Sketcher.Constraint("DistanceY", -1, 1, 12, 3, Q("139 mm")))
sketch13.addConstraint(Sketcher.Constraint("DistanceY", -1, 1, 13, 3, Q("129 mm")))
sketch13.addConstraint(Sketcher.Constraint("DistanceY", -1, 1, 14, 3, Q("119 mm")))
sketch13.addConstraint(Sketcher.Constraint("DistanceY", -1, 1, 15, 3, Q("109 mm")))
sketch13.addConstraint(Sketcher.Constraint("DistanceY", -1, 1, 16, 3, Q("99 mm")))
sketch13.addConstraint(Sketcher.Constraint("DistanceY", -1, 1, 17, 3, Q("89 mm")))
sketch13.addConstraint(Sketcher.Constraint("DistanceY", -1, 1, 18, 3, Q("79 mm")))
sketch13.addConstraint(Sketcher.Constraint("DistanceY", -1, 1, 19, 3, Q("69 mm")))
sketch13.addConstraint(Sketcher.Constraint("DistanceY", -1, 1, 20, 3, Q("59 mm")))
sketch13.addConstraint(Sketcher.Constraint("DistanceY", -1, 1, 21, 3, Q("49 mm")))
sketch13.addConstraint(Sketcher.Constraint("DistanceY", -1, 1, 22, 3, Q("39 mm")))
sketch13.addConstraint(Sketcher.Constraint("DistanceY", -1, 1, 23, 3, Q("29 mm")))
sketch13.addConstraint(Sketcher.Constraint("DistanceY", -1, 1, 24, 3, Q("19 mm")))
sketch13.addConstraint(Sketcher.Constraint("DistanceY", -1, 1, 25, 3, Q("9 mm")))
sketch13.addConstraint(Sketcher.Constraint("DistanceY", 26, 3, -1, 1, Q("1 mm")))
sketch13.addConstraint(Sketcher.Constraint("DistanceY", 27, 3, -1, 1, Q("11 mm")))
sketch13.addConstraint(Sketcher.Constraint("DistanceY", 28, 3, -1, 1, Q("21 mm")))
sketch13.addConstraint(Sketcher.Constraint("DistanceY", 29, 3, -1, 1, Q("31 mm")))
sketch13.addConstraint(Sketcher.Constraint("DistanceY", 30, 3, -1, 1, Q("41 mm")))
sketch13.addConstraint(Sketcher.Constraint("DistanceY", 31, 3, -1, 1, Q("51 mm")))
sketch13.addConstraint(Sketcher.Constraint("DistanceY", 32, 3, -1, 1, Q("61 mm")))
sketch13.addConstraint(Sketcher.Constraint("DistanceY", 33, 3, -1, 1, Q("71 mm")))
sketch13.addConstraint(Sketcher.Constraint("DistanceY", 34, 3, -1, 1, Q("81 mm")))
sketch13.addConstraint(Sketcher.Constraint("DistanceY", 35, 3, -1, 1, Q("91 mm")))
sketch13.addConstraint(Sketcher.Constraint("DistanceY", 36, 3, -1, 1, Q("101 mm")))
pocket10 = doc.addObject("PartDesign::Pocket", "Pocket009")
body.addObject(pocket10)
pocket10.Profile = sketch13
pocket10.Length = 6
pocket10.Reversed = True

# Sketch on YZ plane
sketch14 = doc.addObject("Sketcher::SketchObject", "Sketch013")
body.addObject(sketch14)
sketch14.AttachmentSupport = (doc.YZ_Plane, [""])
sketch14.MapMode = "FlatFace"
sketch14.AttachmentOffset = App.Placement(Vector(0, 0, 6), App.Rotation())
add_polygon(sketch14, [(60, -177.4), (53, -177.4), (53, -176.2), (50, -176.2), (50, -177.4), (45, -177.4), (45, -180.6), (50, -180.6), (50, -181.8), (53, -181.8), (53, -180.6), (60, -180.6)])  # lines 0-11
sketch14.addConstraint(Sketcher.Constraint("Horizontal", 0))
sketch14.addConstraint(Sketcher.Constraint("Vertical", 1))
sketch14.addConstraint(Sketcher.Constraint("Horizontal", 2))
sketch14.addConstraint(Sketcher.Constraint("Vertical", 3))
sketch14.addConstraint(Sketcher.Constraint("Horizontal", 4))
sketch14.addConstraint(Sketcher.Constraint("Vertical", 5))
sketch14.addConstraint(Sketcher.Constraint("Horizontal", 6))
sketch14.addConstraint(Sketcher.Constraint("Vertical", 7))
sketch14.addConstraint(Sketcher.Constraint("Horizontal", 8))
sketch14.addConstraint(Sketcher.Constraint("Vertical", 9))
sketch14.addConstraint(Sketcher.Constraint("Horizontal", 10))
sketch14.addConstraint(Sketcher.Constraint("Vertical", 11))
sketch14.addConstraint(Sketcher.Constraint("Horizontal", 0, 2, 3, 2))
sketch14.addConstraint(Sketcher.Constraint("Horizontal", 6, 2, 9, 2))
sketch14.addConstraint(Sketcher.Constraint("Vertical", 3, 2, 6, 2))
sketch14.addConstraint(Sketcher.Constraint("Vertical", 1, 2, 8, 2))
sketch14.addConstraint(Sketcher.Constraint("Equal", 3, 7))
sketch14.addConstraint(Sketcher.Constraint("DistanceX", 0, 2, 0, 1, Q("7 mm")))
sketch14.addConstraint(Sketcher.Constraint("DistanceX", 2, 2, 2, 1, Q("3 mm")))
sketch14.addConstraint(Sketcher.Constraint("DistanceX", 4, 2, 4, 1, Q("5 mm")))
sketch14.addConstraint(Sketcher.Constraint("DistanceY", 1, 1, 1, 2, Q("1.2 mm")))
sketch14.addConstraint(Sketcher.Constraint("DistanceY", 5, 2, 5, 1, Q("3.2 mm")))
sketch14.addConstraint(Sketcher.Constraint("DistanceX", -1, 1, 0, 2, Q("53 mm")))
sketch14.addConstraint(Sketcher.Constraint("DistanceY", 0, 2, -1, 1, Q("177.4 mm")))
pocket11 = doc.addObject("PartDesign::Pocket", "Pocket010")
body.addObject(pocket11)
pocket11.Profile = sketch14
pocket11.Type = "UpToFirst"

# Sketch on YZ plane
sketch15 = doc.addObject("Sketcher::SketchObject", "Sketch014")
body.addObject(sketch15)
sketch15.AttachmentSupport = (doc.YZ_Plane, [""])
sketch15.MapMode = "FlatFace"
sketch15.AttachmentOffset = App.Placement(Vector(0, 0, 6), App.Rotation())
add_polygon(sketch15, [(50, -237.4), (45, -237.4), (45, -240.6), (50, -240.6), (50, -241.8), (53, -241.8), (53, -240.6), (60, -240.6), (60, -237.4), (53, -237.4), (53, -236.2), (50, -236.2)])  # lines 0-11
sketch15.addConstraint(Sketcher.Constraint("Horizontal", 0))
sketch15.addConstraint(Sketcher.Constraint("Vertical", 1))
sketch15.addConstraint(Sketcher.Constraint("Horizontal", 2))
sketch15.addConstraint(Sketcher.Constraint("Vertical", 3))
sketch15.addConstraint(Sketcher.Constraint("Horizontal", 4))
sketch15.addConstraint(Sketcher.Constraint("Vertical", 5))
sketch15.addConstraint(Sketcher.Constraint("Horizontal", 6))
sketch15.addConstraint(Sketcher.Constraint("Vertical", 7))
sketch15.addConstraint(Sketcher.Constraint("Horizontal", 8))
sketch15.addConstraint(Sketcher.Constraint("Vertical", 9))
sketch15.addConstraint(Sketcher.Constraint("Horizontal", 10))
sketch15.addConstraint(Sketcher.Constraint("Vertical", 11))
sketch15.addConstraint(Sketcher.Constraint("Horizontal", 2, 2, 5, 2))
sketch15.addConstraint(Sketcher.Constraint("Horizontal", 0, 2, 7, 2))
sketch15.addConstraint(Sketcher.Constraint("Vertical", 5, 2, 8, 2))
sketch15.addConstraint(Sketcher.Constraint("Vertical", 3, 2, 10, 2))
sketch15.addConstraint(Sketcher.Constraint("Equal", 5, 9))
sketch15.addConstraint(Sketcher.Constraint("DistanceX", 0, 2, 0, 1, Q("5 mm")))
sketch15.addConstraint(Sketcher.Constraint("DistanceX", 4, 1, 4, 2, Q("3 mm")))
sketch15.addConstraint(Sketcher.Constraint("DistanceX", 6, 1, 6, 2, Q("7 mm")))
sketch15.addConstraint(Sketcher.Constraint("DistanceY", 1, 2, 1, 1, Q("3.2 mm")))
sketch15.addConstraint(Sketcher.Constraint("DistanceY", 3, 2, 3, 1, Q("1.2 mm")))
sketch15.addConstraint(Sketcher.Constraint("DistanceX", -1, 1, 0, 2, Q("45 mm")))
sketch15.addConstraint(Sketcher.Constraint("DistanceY", 0, 2, -1, 1, Q("237.4 mm")))
pocket12 = doc.addObject("PartDesign::Pocket", "Pocket011")
body.addObject(pocket12)
pocket12.Profile = sketch15
pocket12.Type = "UpToFirst"

# Sketch on YZ plane
sketch16 = doc.addObject("Sketcher::SketchObject", "Sketch015")
body.addObject(sketch16)
sketch16.AttachmentSupport = (doc.YZ_Plane, [""])
sketch16.MapMode = "FlatFace"
sketch16.AttachmentOffset = App.Placement(Vector(0, 0, 6), App.Rotation())
sketch16.addGeometry(Part.Circle(Vector(-48, 257, 0), Vector(0, 0, 1), 2.1), False)
sketch16.addConstraint(Sketcher.Constraint("Diameter", 0, Q("4.2 mm")))
sketch16.addConstraint(Sketcher.Constraint("DistanceX", 0, 3, -1, 1, Q("48 mm")))
sketch16.addConstraint(Sketcher.Constraint("DistanceY", -1, 1, 0, 3, Q("257 mm")))
pocket13 = doc.addObject("PartDesign::Pocket", "Pocket012")
body.addObject(pocket13)
pocket13.Profile = sketch16
pocket13.Type = "ThroughAll"

# Sketch on YZ plane
sketch17 = doc.addObject("Sketcher::SketchObject", "Sketch016")
body.addObject(sketch17)
sketch17.AttachmentSupport = (doc.YZ_Plane, [""])
sketch17.MapMode = "FlatFace"
sketch17.AttachmentOffset = App.Placement(Vector(0, 0, 6), App.Rotation())
sketch17.addGeometry(Part.Circle(Vector(-63, 227.75, 0), Vector(0, 0, 1), 1.6), False)
sketch17.addGeometry(Part.Circle(Vector(-63, -216.75, 0), Vector(0, 0, 1), 1.6), False)
sketch17.addConstraint(Sketcher.Constraint("Equal", 0, 1))
sketch17.addConstraint(Sketcher.Constraint("Vertical", 0, 3, 1, 3))
sketch17.addConstraint(Sketcher.Constraint("Diameter", 0, Q("3.2 mm")))
sketch17.addConstraint(Sketcher.Constraint("DistanceX", 0, 3, -1, 1, Q("63 mm")))
sketch17.addConstraint(Sketcher.Constraint("DistanceY", 1, 3, 0, 3, Q("444.5 mm")))
sketch17.addConstraint(Sketcher.Constraint("DistanceY", -1, 1, 0, 3, Q("227.75 mm")))
pocket14 = doc.addObject("PartDesign::Pocket", "Pocket013")
body.addObject(pocket14)
pocket14.Profile = sketch17
pocket14.Type = "ThroughAll"

# Sketch on YZ plane
sketch18 = doc.addObject("Sketcher::SketchObject", "Sketch017")
body.addObject(sketch18)
sketch18.AttachmentSupport = (doc.YZ_Plane, [""])
sketch18.MapMode = "FlatFace"
sketch18.AttachmentOffset = App.Placement(Vector(0, 0, 6), App.Rotation())
sketch18.addGeometry(Part.Circle(Vector(-34, -259, 0), Vector(0, 0, 1), 1.6), False)
sketch18.addGeometry(Part.Circle(Vector(54, -259, 0), Vector(0, 0, 1), 1.6), False)
sketch18.addGeometry(Part.Circle(Vector(-54, -259, 0), Vector(0, 0, 1), 1.6), False)
sketch18.addGeometry(Part.Circle(Vector(-54, -209, 0), Vector(0, 0, 1), 1.6), False)
sketch18.addGeometry(Part.Circle(Vector(-34, -209, 0), Vector(0, 0, 1), 1.6), False)
sketch18.addGeometry(Part.Circle(Vector(34, -209, 0), Vector(0, 0, 1), 1.6), False)
sketch18.addGeometry(Part.Circle(Vector(54, -209, 0), Vector(0, 0, 1), 1.6), False)
sketch18.addGeometry(Part.Circle(Vector(34, -259, 0), Vector(0, 0, 1), 1.6), False)
sketch18.addGeometry(Part.Circle(Vector(34, 209, 0), Vector(0, 0, 1), 1.6), False)
sketch18.addGeometry(Part.Circle(Vector(34, 259, 0), Vector(0, 0, 1), 1.6), False)
sketch18.addGeometry(Part.Circle(Vector(54, 209, 0), Vector(0, 0, 1), 1.6), False)
sketch18.addGeometry(Part.Circle(Vector(54, 259, 0), Vector(0, 0, 1), 1.6), False)
sketch18.addConstraint(Sketcher.Constraint("Equal", 0, 1))
sketch18.addConstraint(Sketcher.Constraint("Equal", 1, 2))
sketch18.addConstraint(Sketcher.Constraint("Equal", 2, 3))
sketch18.addConstraint(Sketcher.Constraint("Equal", 3, 4))
sketch18.addConstraint(Sketcher.Constraint("Equal", 4, 5))
sketch18.addConstraint(Sketcher.Constraint("Equal", 5, 6))
sketch18.addConstraint(Sketcher.Constraint("Equal", 6, 7))
sketch18.addConstraint(Sketcher.Constraint("Equal", 7, 8))
sketch18.addConstraint(Sketcher.Constraint("Equal", 8, 9))
sketch18.addConstraint(Sketcher.Constraint("Equal", 9, 10))
sketch18.addConstraint(Sketcher.Constraint("Equal", 10, 11))
sketch18.addConstraint(Sketcher.Constraint("Symmetric", 4, 3, 8, 3, -1, 1))
sketch18.addConstraint(Sketcher.Constraint("Symmetric", 0, 3, 9, 3, -1, 1))
sketch18.addConstraint(Sketcher.Constraint("Symmetric", 3, 3, 10, 3, -1, 1))
sketch18.addConstraint(Sketcher.Constraint("Symmetric", 2, 3, 11, 3, -1, 1))
sketch18.addConstraint(Sketcher.Constraint("Symmetric", 1, 3, 2, 3, -2))
sketch18.addConstraint(Sketcher.Constraint("Symmetric", 4, 3, 5, 3, -2))
sketch18.addConstraint(Sketcher.Constraint("Symmetric", 3, 3, 6, 3, -2))
sketch18.addConstraint(Sketcher.Constraint("Symmetric", 0, 3, 7, 3, -2))
sketch18.addConstraint(Sketcher.Constraint("Horizontal", 0, 3, 1, 3))
sketch18.addConstraint(Sketcher.Constraint("Horizontal", 3, 3, 4, 3))
sketch18.addConstraint(Sketcher.Constraint("Vertical", 2, 3, 3, 3))
sketch18.addConstraint(Sketcher.Constraint("Vertical", 0, 3, 4, 3))
sketch18.addConstraint(Sketcher.Constraint("Diameter", 0, Q("3.2 mm")))
sketch18.addConstraint(Sketcher.Constraint("DistanceX", 0, 3, -1, 1, Q("34 mm")))
sketch18.addConstraint(Sketcher.Constraint("DistanceY", 0, 3, -1, 1, Q("259 mm")))
sketch18.addConstraint(Sketcher.Constraint("DistanceX", -1, 1, 1, 3, Q("54 mm")))
sketch18.addConstraint(Sketcher.Constraint("DistanceY", 3, 3, -1, 1, Q("209 mm")))
pocket15 = doc.addObject("PartDesign::Pocket", "Pocket014")
body.addObject(pocket15)
pocket15.Profile = sketch18
pocket15.Type = "ThroughAll"

# Sketch on YZ plane
sketch19 = doc.addObject("Sketcher::SketchObject", "Sketch018")
body.addObject(sketch19)
sketch19.AttachmentSupport = (doc.YZ_Plane, [""])
sketch19.MapMode = "FlatFace"
sketch19.AttachmentOffset = App.Placement(Vector(0, 0, 6), App.Rotation())
add_polygon(sketch19, [(7.5, -122), (-7.5, -122), (-7.5, -137), (7.5, -137)])  # lines 0-3
sketch19.addConstraint(Sketcher.Constraint("Horizontal", 0))
sketch19.addConstraint(Sketcher.Constraint("Vertical", 1))
sketch19.addConstraint(Sketcher.Constraint("Horizontal", 2))
sketch19.addConstraint(Sketcher.Constraint("Vertical", 3))
sketch19.addConstraint(Sketcher.Constraint("Equal", 2, 1))
sketch19.addConstraint(Sketcher.Constraint("DistanceX", 0, 2, 0, 1, Q("15 mm")))
sketch19.addConstraint(Sketcher.Constraint("DistanceY", 0, 2, -1, 1, Q("122 mm")))
sketch19.addConstraint(Sketcher.Constraint("DistanceX", 0, 2, -1, 1, Q("7.5 mm")))
pocket16 = doc.addObject("PartDesign::Pocket", "Pocket015")
body.addObject(pocket16)
pocket16.Profile = sketch19
pocket16.Type = "ThroughAll"

doc.recompute()
